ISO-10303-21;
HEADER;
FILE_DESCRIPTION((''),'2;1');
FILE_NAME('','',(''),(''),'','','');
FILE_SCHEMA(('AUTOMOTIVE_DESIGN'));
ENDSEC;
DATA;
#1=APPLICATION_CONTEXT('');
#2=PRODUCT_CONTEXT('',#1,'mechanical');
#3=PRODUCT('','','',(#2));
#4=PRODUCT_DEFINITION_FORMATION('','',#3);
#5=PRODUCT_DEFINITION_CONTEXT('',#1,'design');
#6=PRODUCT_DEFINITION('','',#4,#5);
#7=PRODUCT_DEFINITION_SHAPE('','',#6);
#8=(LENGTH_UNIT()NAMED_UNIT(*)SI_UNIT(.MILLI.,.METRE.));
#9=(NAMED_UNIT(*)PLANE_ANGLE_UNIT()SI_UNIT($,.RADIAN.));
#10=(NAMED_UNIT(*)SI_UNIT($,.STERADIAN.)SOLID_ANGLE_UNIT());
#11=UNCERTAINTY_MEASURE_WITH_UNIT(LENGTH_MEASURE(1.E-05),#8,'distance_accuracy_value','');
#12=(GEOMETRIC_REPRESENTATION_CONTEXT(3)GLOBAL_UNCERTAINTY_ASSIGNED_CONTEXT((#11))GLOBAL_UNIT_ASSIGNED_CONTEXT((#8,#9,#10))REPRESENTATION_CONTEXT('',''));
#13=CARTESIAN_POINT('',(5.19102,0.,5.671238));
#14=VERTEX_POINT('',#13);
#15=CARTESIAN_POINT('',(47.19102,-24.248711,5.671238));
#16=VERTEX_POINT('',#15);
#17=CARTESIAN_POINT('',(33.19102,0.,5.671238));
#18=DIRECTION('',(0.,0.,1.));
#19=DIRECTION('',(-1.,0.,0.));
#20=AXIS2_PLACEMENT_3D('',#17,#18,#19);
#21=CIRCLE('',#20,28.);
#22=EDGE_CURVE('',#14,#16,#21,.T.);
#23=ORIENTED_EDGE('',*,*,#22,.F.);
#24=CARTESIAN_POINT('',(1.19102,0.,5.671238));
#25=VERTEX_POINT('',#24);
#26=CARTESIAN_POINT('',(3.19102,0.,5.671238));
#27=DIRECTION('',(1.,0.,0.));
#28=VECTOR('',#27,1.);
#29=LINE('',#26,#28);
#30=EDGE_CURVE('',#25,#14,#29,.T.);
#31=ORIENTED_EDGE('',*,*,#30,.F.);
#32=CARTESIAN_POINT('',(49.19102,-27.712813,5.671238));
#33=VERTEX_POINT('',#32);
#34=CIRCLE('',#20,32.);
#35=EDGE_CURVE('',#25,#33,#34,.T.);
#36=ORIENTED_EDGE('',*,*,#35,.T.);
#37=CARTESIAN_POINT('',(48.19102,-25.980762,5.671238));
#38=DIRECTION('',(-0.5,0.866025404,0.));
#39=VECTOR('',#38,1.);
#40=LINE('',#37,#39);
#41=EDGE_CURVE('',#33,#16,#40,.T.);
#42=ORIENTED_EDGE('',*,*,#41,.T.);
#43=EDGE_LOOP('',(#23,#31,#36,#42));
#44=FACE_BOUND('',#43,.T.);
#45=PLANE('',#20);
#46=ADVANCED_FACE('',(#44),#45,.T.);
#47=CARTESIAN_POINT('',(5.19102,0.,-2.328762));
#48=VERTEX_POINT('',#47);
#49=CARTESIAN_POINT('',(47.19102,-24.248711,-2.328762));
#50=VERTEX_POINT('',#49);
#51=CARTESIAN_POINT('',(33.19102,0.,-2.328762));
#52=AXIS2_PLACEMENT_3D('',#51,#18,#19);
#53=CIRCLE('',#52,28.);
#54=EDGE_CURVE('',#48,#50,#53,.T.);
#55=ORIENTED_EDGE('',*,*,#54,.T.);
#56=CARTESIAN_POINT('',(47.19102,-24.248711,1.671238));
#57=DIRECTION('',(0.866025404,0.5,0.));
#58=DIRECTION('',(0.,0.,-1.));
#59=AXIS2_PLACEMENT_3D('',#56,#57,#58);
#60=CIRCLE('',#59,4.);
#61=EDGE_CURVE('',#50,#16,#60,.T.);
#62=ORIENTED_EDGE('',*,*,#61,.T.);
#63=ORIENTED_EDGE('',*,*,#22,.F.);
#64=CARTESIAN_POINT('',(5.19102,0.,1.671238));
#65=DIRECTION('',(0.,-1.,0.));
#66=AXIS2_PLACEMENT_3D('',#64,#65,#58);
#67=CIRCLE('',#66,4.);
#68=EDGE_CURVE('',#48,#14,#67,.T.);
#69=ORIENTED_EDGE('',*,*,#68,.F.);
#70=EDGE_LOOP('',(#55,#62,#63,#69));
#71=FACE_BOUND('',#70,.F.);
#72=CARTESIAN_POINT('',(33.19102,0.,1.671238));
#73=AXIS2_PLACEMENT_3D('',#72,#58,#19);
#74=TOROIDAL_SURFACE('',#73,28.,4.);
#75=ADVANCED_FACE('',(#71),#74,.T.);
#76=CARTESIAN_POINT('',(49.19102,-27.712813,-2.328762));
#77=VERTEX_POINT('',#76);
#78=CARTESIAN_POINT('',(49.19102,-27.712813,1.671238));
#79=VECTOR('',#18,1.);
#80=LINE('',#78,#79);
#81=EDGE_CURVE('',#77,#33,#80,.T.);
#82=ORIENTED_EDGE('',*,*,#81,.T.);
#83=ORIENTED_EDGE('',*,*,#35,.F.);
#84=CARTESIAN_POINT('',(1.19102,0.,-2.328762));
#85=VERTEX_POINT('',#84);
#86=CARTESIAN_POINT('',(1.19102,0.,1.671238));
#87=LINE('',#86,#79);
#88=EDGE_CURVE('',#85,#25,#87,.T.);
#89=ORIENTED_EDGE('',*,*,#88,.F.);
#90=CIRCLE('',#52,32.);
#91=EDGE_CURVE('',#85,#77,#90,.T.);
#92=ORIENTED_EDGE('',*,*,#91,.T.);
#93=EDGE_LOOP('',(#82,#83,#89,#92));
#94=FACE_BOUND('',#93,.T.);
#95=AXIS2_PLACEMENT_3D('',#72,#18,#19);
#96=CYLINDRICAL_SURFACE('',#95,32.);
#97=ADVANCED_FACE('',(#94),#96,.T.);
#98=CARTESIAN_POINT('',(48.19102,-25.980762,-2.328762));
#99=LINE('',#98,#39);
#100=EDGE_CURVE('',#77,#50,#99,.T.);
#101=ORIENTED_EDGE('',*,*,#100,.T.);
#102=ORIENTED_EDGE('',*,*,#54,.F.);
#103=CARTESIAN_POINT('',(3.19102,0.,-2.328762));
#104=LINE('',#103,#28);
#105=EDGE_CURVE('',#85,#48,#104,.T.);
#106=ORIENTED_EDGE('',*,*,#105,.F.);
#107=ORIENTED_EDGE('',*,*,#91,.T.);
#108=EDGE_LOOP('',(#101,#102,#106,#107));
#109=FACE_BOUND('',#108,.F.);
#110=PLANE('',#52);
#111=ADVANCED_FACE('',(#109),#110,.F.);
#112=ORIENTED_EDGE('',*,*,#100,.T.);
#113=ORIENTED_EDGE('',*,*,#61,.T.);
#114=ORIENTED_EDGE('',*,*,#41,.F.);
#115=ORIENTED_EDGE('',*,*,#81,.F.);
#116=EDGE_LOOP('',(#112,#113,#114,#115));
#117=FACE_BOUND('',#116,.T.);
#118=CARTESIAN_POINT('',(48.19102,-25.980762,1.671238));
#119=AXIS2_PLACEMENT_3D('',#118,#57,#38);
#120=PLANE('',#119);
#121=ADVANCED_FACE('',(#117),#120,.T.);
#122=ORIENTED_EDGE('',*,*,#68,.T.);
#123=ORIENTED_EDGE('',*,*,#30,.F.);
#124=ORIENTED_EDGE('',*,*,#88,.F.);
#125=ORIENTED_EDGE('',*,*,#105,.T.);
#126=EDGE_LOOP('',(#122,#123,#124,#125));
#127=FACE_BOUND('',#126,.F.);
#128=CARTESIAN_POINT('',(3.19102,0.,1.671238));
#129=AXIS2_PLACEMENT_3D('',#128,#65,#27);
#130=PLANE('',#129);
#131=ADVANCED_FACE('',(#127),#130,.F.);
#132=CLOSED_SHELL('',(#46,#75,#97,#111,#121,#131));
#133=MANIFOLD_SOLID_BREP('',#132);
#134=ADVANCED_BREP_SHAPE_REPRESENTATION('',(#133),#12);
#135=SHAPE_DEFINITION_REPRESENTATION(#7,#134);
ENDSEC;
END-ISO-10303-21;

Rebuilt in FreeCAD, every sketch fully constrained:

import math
import FreeCAD as App
import Part
import Sketcher
from FreeCAD import Vector

doc = App.newDocument("Part")
body = doc.addObject("PartDesign::Body", "Body")

# Sketch on XZ plane
sketch1 = body.newObject("Sketcher::SketchObject", "Sketch")
sketch1.AttachmentSupport = (doc.getObject("XZ_Plane"), [""])
sketch1.MapMode = "FlatFace"
sketch1.addGeometry([
    Part.LineSegment(Vector(1.2, 5.7, 0), Vector(1.2, -2.3, 0)),
    Part.LineSegment(Vector(1.2, -2.3, 0), Vector(5.2, -2.3, 0)),
    Part.ArcOfCircle(Part.Circle(Vector(5.2, 1.7, 0), Vector(0, 0, 1), 4), math.radians(-90), math.radians(90)),
    Part.LineSegment(Vector(5.2, 5.7, 0), Vector(1.2, 5.7, 0)),
], False)
sketch1.addGeometry(Part.LineSegment(Vector(33.2, -2.3, 0), Vector(33.2, 5.7, 0)), True)  # axis
sketch1.addConstraint([
    Sketcher.Constraint("Coincident", 0, 2, 1, 1),
    Sketcher.Constraint("Tangent", 1, 2, 2, 1),
    Sketcher.Constraint("Tangent", 2, 2, 3, 1),
    Sketcher.Constraint("Coincident", 3, 2, 0, 1),
    Sketcher.Constraint("Vertical", 0),
    Sketcher.Constraint("Horizontal", 1),
    Sketcher.Constraint("Horizontal", 3),
    Sketcher.Constraint("Vertical", 4),
    Sketcher.Constraint("Horizontal", 1, 2, 4, 1),
    Sketcher.Constraint("Horizontal", 3, 2, 4, 2),
    Sketcher.Constraint("Radius", 2, 4.0),
    Sketcher.Constraint("DistanceX", 1, 1, 1, 2, 4.0),
    Sketcher.Constraint("DistanceX", 1, 2, 4, 1, 28.0),
    Sketcher.Constraint("DistanceX", -1, 1, 2, 3, 5.19102),
    Sketcher.Constraint("DistanceY", -1, 1, 2, 3, 1.671238),
])
revolution = body.newObject("PartDesign::Revolution", "Revolution")
revolution.Profile = sketch1
revolution.ReferenceAxis = (sketch1, ["Axis0"])
revolution.Angle = 120

doc.recompute()
